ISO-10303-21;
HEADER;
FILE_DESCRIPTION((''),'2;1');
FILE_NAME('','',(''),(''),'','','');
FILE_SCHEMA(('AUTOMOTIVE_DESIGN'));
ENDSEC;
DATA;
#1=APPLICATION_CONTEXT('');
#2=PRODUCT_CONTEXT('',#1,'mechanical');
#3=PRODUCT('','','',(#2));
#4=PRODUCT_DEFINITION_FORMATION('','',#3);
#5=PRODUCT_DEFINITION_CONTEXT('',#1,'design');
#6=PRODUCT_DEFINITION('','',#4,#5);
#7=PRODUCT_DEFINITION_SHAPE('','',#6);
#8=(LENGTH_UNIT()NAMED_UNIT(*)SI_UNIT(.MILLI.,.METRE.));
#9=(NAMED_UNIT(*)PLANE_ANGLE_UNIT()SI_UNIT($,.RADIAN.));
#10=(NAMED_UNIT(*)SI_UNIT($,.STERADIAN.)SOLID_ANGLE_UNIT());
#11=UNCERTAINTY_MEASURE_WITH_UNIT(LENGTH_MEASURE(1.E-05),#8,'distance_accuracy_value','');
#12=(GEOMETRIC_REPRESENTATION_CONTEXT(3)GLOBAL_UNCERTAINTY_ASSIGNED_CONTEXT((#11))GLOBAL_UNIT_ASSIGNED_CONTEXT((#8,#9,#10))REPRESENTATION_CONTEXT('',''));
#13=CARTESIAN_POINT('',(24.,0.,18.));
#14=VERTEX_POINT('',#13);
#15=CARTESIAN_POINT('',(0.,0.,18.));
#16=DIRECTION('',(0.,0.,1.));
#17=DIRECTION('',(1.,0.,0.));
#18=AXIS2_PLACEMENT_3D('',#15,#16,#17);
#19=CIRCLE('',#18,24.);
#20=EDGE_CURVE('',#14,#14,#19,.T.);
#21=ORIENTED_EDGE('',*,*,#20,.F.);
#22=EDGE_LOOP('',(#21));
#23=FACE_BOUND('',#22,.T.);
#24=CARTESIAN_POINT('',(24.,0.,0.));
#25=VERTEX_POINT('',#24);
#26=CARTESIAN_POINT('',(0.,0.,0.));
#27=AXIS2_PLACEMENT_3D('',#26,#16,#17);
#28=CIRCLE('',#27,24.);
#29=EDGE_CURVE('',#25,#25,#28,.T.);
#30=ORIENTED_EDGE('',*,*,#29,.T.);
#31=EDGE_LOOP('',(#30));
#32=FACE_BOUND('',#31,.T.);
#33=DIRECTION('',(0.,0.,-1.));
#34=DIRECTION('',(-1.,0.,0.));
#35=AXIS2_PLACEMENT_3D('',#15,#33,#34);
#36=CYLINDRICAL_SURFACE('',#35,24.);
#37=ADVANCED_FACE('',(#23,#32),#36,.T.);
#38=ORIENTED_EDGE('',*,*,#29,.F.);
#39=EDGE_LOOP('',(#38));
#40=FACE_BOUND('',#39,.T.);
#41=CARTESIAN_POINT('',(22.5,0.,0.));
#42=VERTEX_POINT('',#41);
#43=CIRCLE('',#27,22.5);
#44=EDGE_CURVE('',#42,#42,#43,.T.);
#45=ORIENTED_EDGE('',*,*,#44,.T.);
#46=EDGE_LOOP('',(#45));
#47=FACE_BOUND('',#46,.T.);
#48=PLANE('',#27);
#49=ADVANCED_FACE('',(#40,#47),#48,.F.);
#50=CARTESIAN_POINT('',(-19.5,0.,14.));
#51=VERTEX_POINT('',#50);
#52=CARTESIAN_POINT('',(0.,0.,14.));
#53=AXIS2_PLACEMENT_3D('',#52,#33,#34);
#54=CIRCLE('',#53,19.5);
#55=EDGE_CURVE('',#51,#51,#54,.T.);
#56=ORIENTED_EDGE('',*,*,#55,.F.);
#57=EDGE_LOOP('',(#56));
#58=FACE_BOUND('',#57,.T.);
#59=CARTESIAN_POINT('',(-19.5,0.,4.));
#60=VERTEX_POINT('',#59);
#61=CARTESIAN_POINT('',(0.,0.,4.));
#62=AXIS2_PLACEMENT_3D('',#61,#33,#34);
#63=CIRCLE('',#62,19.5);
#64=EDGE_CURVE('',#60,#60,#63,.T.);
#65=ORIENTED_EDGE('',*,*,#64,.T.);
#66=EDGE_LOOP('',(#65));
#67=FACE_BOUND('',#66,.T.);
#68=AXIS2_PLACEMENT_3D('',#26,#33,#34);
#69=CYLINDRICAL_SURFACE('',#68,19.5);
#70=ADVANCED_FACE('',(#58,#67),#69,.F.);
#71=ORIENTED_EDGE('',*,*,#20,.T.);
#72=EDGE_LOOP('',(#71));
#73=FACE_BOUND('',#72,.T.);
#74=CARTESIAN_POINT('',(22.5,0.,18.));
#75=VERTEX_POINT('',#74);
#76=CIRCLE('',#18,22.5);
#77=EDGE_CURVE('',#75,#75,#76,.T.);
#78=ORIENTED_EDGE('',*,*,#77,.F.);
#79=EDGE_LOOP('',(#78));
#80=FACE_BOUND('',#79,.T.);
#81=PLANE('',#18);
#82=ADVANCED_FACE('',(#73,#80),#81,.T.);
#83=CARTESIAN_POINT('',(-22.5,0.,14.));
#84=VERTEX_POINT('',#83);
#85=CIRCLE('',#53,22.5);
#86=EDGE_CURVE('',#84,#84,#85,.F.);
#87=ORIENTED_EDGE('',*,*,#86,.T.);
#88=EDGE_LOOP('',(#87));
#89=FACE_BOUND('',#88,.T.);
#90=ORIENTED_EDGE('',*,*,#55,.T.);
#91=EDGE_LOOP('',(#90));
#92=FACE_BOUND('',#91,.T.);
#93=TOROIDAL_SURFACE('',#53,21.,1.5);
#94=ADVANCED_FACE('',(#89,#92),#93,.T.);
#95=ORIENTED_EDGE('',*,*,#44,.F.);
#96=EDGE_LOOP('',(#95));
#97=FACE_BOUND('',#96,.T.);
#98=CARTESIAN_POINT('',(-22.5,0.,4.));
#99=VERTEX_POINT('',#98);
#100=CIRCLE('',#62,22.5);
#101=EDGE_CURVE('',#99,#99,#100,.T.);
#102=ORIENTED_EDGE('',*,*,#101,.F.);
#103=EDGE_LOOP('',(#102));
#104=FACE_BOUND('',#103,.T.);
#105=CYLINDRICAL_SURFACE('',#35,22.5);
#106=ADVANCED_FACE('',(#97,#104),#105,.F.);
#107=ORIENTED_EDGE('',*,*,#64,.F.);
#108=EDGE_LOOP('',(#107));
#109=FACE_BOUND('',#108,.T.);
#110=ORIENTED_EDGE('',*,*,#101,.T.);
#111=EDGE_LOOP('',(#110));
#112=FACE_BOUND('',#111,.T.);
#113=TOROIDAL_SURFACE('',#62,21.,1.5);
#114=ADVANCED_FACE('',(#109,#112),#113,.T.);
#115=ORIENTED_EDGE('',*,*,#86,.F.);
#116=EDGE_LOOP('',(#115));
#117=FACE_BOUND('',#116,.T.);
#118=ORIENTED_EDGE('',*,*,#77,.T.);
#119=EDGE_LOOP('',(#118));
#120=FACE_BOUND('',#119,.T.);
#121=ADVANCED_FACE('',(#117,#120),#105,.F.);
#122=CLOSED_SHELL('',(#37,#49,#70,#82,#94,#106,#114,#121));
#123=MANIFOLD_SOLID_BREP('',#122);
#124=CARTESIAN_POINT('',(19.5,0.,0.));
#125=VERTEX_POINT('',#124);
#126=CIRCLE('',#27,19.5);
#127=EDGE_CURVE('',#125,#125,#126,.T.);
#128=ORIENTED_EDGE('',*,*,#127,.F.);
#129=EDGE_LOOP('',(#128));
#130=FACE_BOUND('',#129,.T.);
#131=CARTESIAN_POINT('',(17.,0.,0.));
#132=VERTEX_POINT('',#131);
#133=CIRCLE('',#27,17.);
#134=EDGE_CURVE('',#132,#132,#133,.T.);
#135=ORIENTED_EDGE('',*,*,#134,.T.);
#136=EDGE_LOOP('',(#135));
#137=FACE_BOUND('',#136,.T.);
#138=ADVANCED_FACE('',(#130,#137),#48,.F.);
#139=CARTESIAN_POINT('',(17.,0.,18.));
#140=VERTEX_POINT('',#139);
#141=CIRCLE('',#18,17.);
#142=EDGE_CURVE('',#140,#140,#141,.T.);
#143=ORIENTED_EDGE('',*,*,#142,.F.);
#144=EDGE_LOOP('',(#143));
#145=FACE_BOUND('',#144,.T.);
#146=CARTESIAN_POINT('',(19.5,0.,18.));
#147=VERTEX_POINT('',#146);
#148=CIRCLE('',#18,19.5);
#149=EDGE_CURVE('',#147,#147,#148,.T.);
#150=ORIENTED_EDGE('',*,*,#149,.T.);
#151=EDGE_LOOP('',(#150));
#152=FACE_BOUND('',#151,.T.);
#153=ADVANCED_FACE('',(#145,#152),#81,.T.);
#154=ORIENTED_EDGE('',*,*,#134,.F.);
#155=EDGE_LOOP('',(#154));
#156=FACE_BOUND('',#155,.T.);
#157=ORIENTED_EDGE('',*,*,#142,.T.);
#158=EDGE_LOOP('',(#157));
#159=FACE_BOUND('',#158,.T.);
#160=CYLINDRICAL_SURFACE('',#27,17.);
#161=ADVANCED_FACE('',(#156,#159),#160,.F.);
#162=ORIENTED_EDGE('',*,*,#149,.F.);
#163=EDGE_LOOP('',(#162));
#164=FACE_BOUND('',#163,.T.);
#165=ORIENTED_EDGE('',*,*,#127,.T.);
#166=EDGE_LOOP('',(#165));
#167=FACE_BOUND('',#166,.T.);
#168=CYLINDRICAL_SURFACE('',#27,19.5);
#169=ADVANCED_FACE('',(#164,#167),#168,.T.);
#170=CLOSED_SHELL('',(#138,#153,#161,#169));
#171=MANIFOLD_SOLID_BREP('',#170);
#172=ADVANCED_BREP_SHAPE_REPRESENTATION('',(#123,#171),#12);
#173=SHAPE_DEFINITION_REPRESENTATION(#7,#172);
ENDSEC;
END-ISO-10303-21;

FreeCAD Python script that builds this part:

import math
import FreeCAD as App
import Part
import Sketcher

doc = App.newDocument("Part")
body = doc.addObject("PartDesign::Body", "Body")

# Sketch on XY plane
sketch1 = doc.addObject("Sketcher::SketchObject", "Sketch")
body.addObject(sketch1)
sketch1.AttachmentSupport = (doc.XY_Plane, [""])
sketch1.MapMode = "FlatFace"
sketch1.addGeometry(Part.Circle(App.Vector(0, 0, 0), App.Vector(0, 0, 1), 24), False)
sketch1.addGeometry(Part.Circle(App.Vector(0, 0, 0), App.Vector(0, 0, 1), 22), False)
sketch1.addConstraint(Sketcher.Constraint("Coincident", 0, 3, -1, 1))
sketch1.addConstraint(Sketcher.Constraint("Coincident", 1, 3, -1, 1))
sketch1.addConstraint(Sketcher.Constraint("Diameter", 0, 48.0))
sketch1.addConstraint(Sketcher.Constraint("Diameter", 1, 45.0))
pad1 = doc.addObject("PartDesign::Pad", "Pad")
body.addObject(pad1)
pad1.Profile = sketch1
pad1.Length = 18

# Sketch on YZ plane
sketch2 = doc.addObject("Sketcher::SketchObject", "Sketch001")
body.addObject(sketch2)
sketch2.AttachmentSupport = (doc.YZ_Plane, [""])
sketch2.MapMode = "FlatFace"
sketch2.addGeometry(Part.LineSegment(App.Vector(22.5, 4, 0), App.Vector(22.5, 14, 0)), False)
sketch2.addGeometry(Part.ArcOfCircle(Part.Circle(App.Vector(21, 14, 0), App.Vector(0, 0, 1), 1.5), math.radians(0), math.radians(180)), False)
sketch2.addGeometry(Part.LineSegment(App.Vector(19.5, 14, 0), App.Vector(19.5, 4, 0)), False)
sketch2.addGeometry(Part.ArcOfCircle(Part.Circle(App.Vector(21, 4, 0), App.Vector(0, 0, 1), 1.5), math.radians(180), math.radians(360)), False)
sketch2.addConstraint(Sketcher.Constraint("Tangent", 0, 2, 1, 1))
sketch2.addConstraint(Sketcher.Constraint("Tangent", 1, 2, 2, 1))
sketch2.addConstraint(Sketcher.Constraint("Tangent", 2, 2, 3, 1))
sketch2.addConstraint(Sketcher.Constraint("Tangent", 3, 2, 0, 1))
sketch2.addConstraint(Sketcher.Constraint("Vertical", 0))
sketch2.addConstraint(Sketcher.Constraint("Vertical", 2))
sketch2.addConstraint(Sketcher.Constraint("Radius", 1, 1.5))
sketch2.addConstraint(Sketcher.Constraint("DistanceY", 0, 1, 0, 2, 10.0))
sketch2.addConstraint(Sketcher.Constraint("DistanceX", -1, 1, 1, 3, 21.0))
sketch2.addConstraint(Sketcher.Constraint("DistanceY", -1, 1, 1, 3, 14.0))
revolution = doc.addObject("PartDesign::Revolution", "Revolution")
body.addObject(revolution)
revolution.Profile = sketch2
revolution.ReferenceAxis = (sketch2, ["V_Axis"])
revolution.Angle = 360
body2 = doc.addObject("PartDesign::Body", "Body001")

# Sketch on XY plane
sketch3 = doc.addObject("Sketcher::SketchObject", "Sketch002")
body2.addObject(sketch3)
sketch3.AttachmentSupport = (doc.getObject("XY_Plane001"), [""])
sketch3.MapMode = "FlatFace"
sketch3.AttachmentOffset = App.Placement(App.Vector(0, 0, 18), App.Rotation())
sketch3.addGeometry(Part.Circle(App.Vector(0, 0, 0), App.Vector(0, 0, 1), 20), False)
sketch3.addGeometry(Part.Circle(App.Vector(0, 0, 0), App.Vector(0, 0, 1), 17), False)
sketch3.addConstraint(Sketcher.Constraint("Coincident", 0, 3, -1, 1))
sketch3.addConstraint(Sketcher.Constraint("Coincident", 1, 3, -1, 1))
sketch3.addConstraint(Sketcher.Constraint("Diameter", 0, 39.0))
sketch3.addConstraint(Sketcher.Constraint("Diameter", 1, 34.0))
pad2 = doc.addObject("PartDesign::Pad", "Pad001")
body2.addObject(pad2)
pad2.Profile = sketch3
pad2.Length = 18
pad2.Reversed = True

doc.recompute()
